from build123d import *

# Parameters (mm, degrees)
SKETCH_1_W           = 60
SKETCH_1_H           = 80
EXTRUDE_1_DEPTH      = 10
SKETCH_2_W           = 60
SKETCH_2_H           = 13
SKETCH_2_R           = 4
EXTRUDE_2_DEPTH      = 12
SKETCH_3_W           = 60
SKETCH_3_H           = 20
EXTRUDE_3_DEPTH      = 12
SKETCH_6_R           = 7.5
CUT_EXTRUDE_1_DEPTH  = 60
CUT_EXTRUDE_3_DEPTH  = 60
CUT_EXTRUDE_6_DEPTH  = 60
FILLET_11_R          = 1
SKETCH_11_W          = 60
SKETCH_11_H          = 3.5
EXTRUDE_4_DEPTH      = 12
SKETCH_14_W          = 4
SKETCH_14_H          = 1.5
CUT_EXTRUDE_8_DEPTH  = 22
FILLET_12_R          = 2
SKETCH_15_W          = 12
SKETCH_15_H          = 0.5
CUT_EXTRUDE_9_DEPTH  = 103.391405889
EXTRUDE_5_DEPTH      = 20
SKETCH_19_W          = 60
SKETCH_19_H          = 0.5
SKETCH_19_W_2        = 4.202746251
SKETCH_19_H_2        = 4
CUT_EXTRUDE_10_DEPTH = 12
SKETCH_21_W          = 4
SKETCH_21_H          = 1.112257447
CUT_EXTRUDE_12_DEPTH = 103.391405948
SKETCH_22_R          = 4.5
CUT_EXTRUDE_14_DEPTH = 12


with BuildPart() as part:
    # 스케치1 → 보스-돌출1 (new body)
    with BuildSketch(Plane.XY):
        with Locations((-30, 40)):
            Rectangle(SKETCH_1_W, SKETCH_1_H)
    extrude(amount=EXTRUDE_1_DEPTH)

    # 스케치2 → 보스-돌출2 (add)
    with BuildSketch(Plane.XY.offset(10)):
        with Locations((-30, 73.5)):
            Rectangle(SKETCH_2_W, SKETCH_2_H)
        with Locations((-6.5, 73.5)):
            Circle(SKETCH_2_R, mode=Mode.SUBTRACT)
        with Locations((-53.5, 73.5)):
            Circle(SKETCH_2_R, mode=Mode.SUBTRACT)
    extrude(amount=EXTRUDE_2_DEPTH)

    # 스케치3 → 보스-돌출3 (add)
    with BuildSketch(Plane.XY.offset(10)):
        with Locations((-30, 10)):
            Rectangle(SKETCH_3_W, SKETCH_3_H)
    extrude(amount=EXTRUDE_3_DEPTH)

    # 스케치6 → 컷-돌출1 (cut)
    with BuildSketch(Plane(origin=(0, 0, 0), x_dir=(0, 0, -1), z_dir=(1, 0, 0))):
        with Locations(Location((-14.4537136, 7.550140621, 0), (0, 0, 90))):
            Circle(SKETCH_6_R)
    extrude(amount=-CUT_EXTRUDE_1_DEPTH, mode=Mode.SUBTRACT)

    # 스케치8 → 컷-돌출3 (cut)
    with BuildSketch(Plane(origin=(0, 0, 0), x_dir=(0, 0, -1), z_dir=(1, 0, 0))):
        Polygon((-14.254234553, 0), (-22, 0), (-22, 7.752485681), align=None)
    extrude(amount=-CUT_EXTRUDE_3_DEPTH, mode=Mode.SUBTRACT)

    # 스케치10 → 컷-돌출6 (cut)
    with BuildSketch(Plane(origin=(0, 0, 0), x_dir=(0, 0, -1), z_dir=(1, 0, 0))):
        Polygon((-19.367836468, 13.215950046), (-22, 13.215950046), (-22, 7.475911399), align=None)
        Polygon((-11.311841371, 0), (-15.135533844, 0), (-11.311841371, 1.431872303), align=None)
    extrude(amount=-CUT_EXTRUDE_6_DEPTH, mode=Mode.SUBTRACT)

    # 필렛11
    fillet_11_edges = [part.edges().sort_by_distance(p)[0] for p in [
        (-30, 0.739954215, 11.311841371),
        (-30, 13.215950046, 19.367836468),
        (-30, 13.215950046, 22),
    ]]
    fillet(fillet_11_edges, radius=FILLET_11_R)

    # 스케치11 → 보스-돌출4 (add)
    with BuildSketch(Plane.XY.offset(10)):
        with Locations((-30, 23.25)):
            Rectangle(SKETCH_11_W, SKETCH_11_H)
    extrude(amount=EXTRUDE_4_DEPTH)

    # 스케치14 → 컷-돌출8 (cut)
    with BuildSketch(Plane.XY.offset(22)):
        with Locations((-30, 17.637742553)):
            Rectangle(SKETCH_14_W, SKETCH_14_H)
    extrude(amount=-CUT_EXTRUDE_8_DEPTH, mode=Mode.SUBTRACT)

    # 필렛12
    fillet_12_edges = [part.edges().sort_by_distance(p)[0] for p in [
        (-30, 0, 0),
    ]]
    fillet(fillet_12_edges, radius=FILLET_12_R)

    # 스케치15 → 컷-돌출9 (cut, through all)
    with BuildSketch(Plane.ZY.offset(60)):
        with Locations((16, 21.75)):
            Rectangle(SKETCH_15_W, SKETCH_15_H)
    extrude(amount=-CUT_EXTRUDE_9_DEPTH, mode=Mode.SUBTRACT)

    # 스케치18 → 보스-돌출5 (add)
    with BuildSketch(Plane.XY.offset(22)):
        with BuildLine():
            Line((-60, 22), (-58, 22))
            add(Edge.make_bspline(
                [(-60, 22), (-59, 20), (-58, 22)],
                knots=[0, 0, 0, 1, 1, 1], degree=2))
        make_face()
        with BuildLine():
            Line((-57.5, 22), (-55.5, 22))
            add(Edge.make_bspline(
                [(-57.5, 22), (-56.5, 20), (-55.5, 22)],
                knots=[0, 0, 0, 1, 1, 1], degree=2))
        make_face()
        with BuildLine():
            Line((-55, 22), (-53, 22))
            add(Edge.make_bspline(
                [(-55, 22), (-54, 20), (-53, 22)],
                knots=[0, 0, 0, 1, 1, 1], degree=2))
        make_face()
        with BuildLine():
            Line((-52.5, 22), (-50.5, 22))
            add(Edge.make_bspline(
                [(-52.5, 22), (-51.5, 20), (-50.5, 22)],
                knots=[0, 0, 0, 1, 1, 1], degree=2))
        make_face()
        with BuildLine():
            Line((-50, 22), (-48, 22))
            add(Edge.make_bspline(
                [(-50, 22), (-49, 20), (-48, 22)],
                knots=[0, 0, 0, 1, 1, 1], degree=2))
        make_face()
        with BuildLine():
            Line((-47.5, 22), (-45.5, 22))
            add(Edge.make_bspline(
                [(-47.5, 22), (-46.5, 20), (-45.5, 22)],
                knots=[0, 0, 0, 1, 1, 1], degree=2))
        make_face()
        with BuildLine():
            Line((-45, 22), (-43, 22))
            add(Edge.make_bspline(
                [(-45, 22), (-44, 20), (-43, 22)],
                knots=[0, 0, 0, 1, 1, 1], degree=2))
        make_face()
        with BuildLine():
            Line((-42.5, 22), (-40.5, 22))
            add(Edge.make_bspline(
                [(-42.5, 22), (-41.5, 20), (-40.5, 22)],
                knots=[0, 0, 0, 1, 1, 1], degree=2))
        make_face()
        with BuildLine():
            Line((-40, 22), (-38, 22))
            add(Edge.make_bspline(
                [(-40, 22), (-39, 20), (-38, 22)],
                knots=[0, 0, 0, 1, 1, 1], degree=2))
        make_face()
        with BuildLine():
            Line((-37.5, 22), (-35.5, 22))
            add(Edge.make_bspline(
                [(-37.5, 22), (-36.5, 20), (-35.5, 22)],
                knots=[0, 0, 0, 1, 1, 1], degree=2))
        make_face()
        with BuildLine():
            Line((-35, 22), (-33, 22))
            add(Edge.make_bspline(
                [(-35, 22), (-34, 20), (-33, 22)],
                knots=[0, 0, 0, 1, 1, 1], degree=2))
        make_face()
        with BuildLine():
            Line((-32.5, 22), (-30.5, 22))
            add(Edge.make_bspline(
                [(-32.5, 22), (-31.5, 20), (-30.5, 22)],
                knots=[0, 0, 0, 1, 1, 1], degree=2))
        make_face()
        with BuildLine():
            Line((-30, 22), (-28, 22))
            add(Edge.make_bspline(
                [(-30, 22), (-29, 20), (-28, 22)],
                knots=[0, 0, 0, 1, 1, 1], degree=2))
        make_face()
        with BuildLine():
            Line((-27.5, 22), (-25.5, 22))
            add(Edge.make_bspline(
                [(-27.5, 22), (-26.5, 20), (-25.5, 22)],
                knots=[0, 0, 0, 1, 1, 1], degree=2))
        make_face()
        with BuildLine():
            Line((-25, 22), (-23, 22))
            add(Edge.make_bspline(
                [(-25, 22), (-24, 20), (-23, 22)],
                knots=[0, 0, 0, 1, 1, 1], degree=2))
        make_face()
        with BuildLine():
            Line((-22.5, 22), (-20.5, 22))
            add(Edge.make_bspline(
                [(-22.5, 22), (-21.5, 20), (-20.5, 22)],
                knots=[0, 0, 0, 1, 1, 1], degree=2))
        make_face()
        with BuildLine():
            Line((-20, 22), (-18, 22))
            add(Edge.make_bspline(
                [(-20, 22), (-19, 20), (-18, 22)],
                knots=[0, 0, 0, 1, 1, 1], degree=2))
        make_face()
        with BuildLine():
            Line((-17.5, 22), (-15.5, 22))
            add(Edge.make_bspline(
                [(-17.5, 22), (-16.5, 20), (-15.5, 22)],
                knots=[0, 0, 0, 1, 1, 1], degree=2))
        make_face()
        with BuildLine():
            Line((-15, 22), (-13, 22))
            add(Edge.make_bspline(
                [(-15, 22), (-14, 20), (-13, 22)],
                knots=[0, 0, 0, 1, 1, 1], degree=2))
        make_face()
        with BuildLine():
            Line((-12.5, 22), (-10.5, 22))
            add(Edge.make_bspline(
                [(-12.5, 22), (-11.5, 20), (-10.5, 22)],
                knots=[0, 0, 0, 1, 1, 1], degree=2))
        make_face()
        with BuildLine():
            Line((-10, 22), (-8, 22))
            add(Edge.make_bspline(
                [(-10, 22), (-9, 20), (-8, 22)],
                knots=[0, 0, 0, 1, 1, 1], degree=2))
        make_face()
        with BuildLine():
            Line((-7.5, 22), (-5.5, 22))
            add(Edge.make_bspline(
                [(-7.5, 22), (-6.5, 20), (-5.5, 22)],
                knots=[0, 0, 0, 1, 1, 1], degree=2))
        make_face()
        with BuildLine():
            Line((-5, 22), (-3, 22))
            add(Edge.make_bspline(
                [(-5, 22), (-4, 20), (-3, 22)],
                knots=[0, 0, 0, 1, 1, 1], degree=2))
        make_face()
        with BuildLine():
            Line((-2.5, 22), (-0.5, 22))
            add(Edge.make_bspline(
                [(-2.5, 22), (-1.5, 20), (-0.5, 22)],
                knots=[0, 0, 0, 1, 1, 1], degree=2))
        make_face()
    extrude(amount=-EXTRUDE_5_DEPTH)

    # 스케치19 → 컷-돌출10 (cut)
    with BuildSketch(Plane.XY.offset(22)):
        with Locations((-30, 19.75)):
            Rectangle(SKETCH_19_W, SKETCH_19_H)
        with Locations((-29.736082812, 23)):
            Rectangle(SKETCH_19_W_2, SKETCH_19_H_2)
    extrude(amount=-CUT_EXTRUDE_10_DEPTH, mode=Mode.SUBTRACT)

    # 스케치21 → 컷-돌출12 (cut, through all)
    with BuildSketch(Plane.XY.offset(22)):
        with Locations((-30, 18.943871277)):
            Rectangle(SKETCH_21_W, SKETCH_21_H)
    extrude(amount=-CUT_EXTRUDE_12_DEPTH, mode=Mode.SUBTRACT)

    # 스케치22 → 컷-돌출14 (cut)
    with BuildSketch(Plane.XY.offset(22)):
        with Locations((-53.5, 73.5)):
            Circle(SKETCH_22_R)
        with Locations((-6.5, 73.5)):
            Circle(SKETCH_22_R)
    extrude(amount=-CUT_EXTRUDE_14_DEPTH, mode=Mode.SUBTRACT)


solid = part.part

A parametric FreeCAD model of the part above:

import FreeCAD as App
import Part
import Sketcher
from FreeCAD import Vector


def edges_at(feature, points):
    """Names of the edges that pass closest to the given points."""
    edges = feature.Shape.Edges
    near = lambda p: min(range(len(edges)), key=lambda i: edges[i].distToShape(Part.Vertex(*p))[0])
    return sorted({f"Edge{near(p) + 1}" for p in points})

doc = App.newDocument("Part")
body = doc.addObject("PartDesign::Body", "Body")

# Sketch on XY plane
sketch1 = body.newObject("Sketcher::SketchObject", "Sketch")
sketch1.AttachmentSupport = (doc.getObject("XY_Plane"), [""])
sketch1.MapMode = "FlatFace"
sketch1.addGeometry(Part.LineSegment(Vector(-60, 80, 0), Vector(-60, 0, 0)), False)
sketch1.addGeometry(Part.LineSegment(Vector(-60, 0, 0), Vector(0, 0, 0)), False)
sketch1.addGeometry(Part.LineSegment(Vector(0, 0, 0), Vector(0, 80, 0)), False)
sketch1.addGeometry(Part.LineSegment(Vector(0, 80, 0), Vector(-60, 80, 0)), False)
sketch1.addConstraint(Sketcher.Constraint("Coincident", 0, 2, 1, 1))
sketch1.addConstraint(Sketcher.Constraint("Coincident", 1, 2, 2, 1))
sketch1.addConstraint(Sketcher.Constraint("Coincident", 2, 2, 3, 1))
sketch1.addConstraint(Sketcher.Constraint("Coincident", 3, 2, 0, 1))
sketch1.addConstraint(Sketcher.Constraint("Vertical", 0))
sketch1.addConstraint(Sketcher.Constraint("Horizontal", 1))
sketch1.addConstraint(Sketcher.Constraint("Vertical", 2))
sketch1.addConstraint(Sketcher.Constraint("Horizontal", 3))
sketch1.addConstraint(Sketcher.Constraint("Coincident", 1, 2, -1, 1))
sketch1.addConstraint(Sketcher.Constraint("DistanceX", 1, 1, 1, 2, 60.0))
sketch1.addConstraint(Sketcher.Constraint("DistanceY", 0, 2, 0, 1, 80.0))
pad1 = body.newObject("PartDesign::Pad", "Pad")
pad1.Profile = sketch1
pad1.Length = 10

# Sketch on XY plane
sketch2 = body.newObject("Sketcher::SketchObject", "Sketch001")
sketch2.AttachmentSupport = (doc.getObject("XY_Plane"), [""])
sketch2.MapMode = "FlatFace"
sketch2.AttachmentOffset = App.Placement(Vector(0, 0, 10), App.Rotation())
sketch2.addGeometry(Part.LineSegment(Vector(-60, 80, 0), Vector(-60, 67, 0)), False)
sketch2.addGeometry(Part.LineSegment(Vector(-60, 67, 0), Vector(0, 67, 0)), False)
sketch2.addGeometry(Part.LineSegment(Vector(0, 67, 0), Vector(0, 80, 0)), False)
sketch2.addGeometry(Part.LineSegment(Vector(0, 80, 0), Vector(-60, 80, 0)), False)
sketch2.addGeometry(Part.Circle(Vector(-53.5, 73.5, 0), Vector(0, 0, 1), 4), False)
sketch2.addGeometry(Part.Circle(Vector(-6.5, 73.5, 0), Vector(0, 0, 1), 4), False)
sketch2.addConstraint(Sketcher.Constraint("Coincident", 0, 2, 1, 1))
sketch2.addConstraint(Sketcher.Constraint("Coincident", 1, 2, 2, 1))
sketch2.addConstraint(Sketcher.Constraint("Coincident", 2, 2, 3, 1))
sketch2.addConstraint(Sketcher.Constraint("Coincident", 3, 2, 0, 1))
sketch2.addConstraint(Sketcher.Constraint("Vertical", 0))
sketch2.addConstraint(Sketcher.Constraint("Horizontal", 1))
sketch2.addConstraint(Sketcher.Constraint("Vertical", 2))
sketch2.addConstraint(Sketcher.Constraint("Horizontal", 3))
sketch2.addConstraint(Sketcher.Constraint("Equal", 4, 5))
sketch2.addConstraint(Sketcher.Constraint("PointOnObject", 1, 2, -2))
sketch2.addConstraint(Sketcher.Constraint("Horizontal", 4, 3, 5, 3))
sketch2.addConstraint(Sketcher.Constraint("Diameter", 4, 8.0))
sketch2.addConstraint(Sketcher.Constraint("DistanceX", 1, 1, 1, 2, 60.0))
sketch2.addConstraint(Sketcher.Constraint("DistanceY", 0, 2, 0, 1, 13.0))
sketch2.addConstraint(Sketcher.Constraint("DistanceY", -1, 1, 0, 2, 67.0))
sketch2.addConstraint(Sketcher.Constraint("DistanceX", 4, 3, 5, 3, 47.0))
sketch2.addConstraint(Sketcher.Constraint("DistanceX", 4, 3, -1, 1, 53.5))
sketch2.addConstraint(Sketcher.Constraint("DistanceY", -1, 1, 4, 3, 73.5))
pad2 = body.newObject("PartDesign::Pad", "Pad001")
pad2.Profile = sketch2
pad2.Length = 12

# Sketch on XY plane
sketch3 = body.newObject("Sketcher::SketchObject", "Sketch002")
sketch3.AttachmentSupport = (doc.getObject("XY_Plane"), [""])
sketch3.MapMode = "FlatFace"
sketch3.AttachmentOffset = App.Placement(Vector(0, 0, 10), App.Rotation())
sketch3.addGeometry(Part.LineSegment(Vector(-60, 20, 0), Vector(-60, 0, 0)), False)
sketch3.addGeometry(Part.LineSegment(Vector(-60, 0, 0), Vector(0, 0, 0)), False)
sketch3.addGeometry(Part.LineSegment(Vector(0, 0, 0), Vector(0, 20, 0)), False)
sketch3.addGeometry(Part.LineSegment(Vector(0, 20, 0), Vector(-60, 20, 0)), False)
sketch3.addConstraint(Sketcher.Constraint("Coincident", 0, 2, 1, 1))
sketch3.addConstraint(Sketcher.Constraint("Coincident", 1, 2, 2, 1))
sketch3.addConstraint(Sketcher.Constraint("Coincident", 2, 2, 3, 1))
sketch3.addConstraint(Sketcher.Constraint("Coincident", 3, 2, 0, 1))
sketch3.addConstraint(Sketcher.Constraint("Vertical", 0))
sketch3.addConstraint(Sketcher.Constraint("Horizontal", 1))
sketch3.addConstraint(Sketcher.Constraint("Vertical", 2))
sketch3.addConstraint(Sketcher.Constraint("Horizontal", 3))
sketch3.addConstraint(Sketcher.Constraint("Coincident", 1, 2, -1, 1))
sketch3.addConstraint(Sketcher.Constraint("DistanceX", 1, 1, 1, 2, 60.0))
sketch3.addConstraint(Sketcher.Constraint("DistanceY", 0, 2, 0, 1, 20.0))
pad3 = body.newObject("PartDesign::Pad", "Pad002")
pad3.Profile = sketch3
pad3.Length = 12

# Sketch on YZ plane
sketch4 = body.newObject("Sketcher::SketchObject", "Sketch003")
sketch4.AttachmentSupport = (doc.getObject("YZ_Plane"), [""])
sketch4.MapMode = "FlatFace"
sketch4.addGeometry(Part.Circle(Vector(8, 14, 0), Vector(0, 0, 1), 8), False)
sketch4.addConstraint(Sketcher.Constraint("Diameter", 0, 15.0))
sketch4.addConstraint(Sketcher.Constraint("DistanceX", -1, 1, 0, 3, 7.550141))
sketch4.addConstraint(Sketcher.Constraint("DistanceY", -1, 1, 0, 3, 14.453714))
pocket1 = body.newObject("PartDesign::Pocket", "Pocket")
pocket1.Profile = sketch4
pocket1.Length = 60

# Sketch on YZ plane
sketch5 = body.newObject("Sketcher::SketchObject", "Sketch004")
sketch5.AttachmentSupport = (doc.getObject("YZ_Plane"), [""])
sketch5.MapMode = "FlatFace"
sketch5.addGeometry(Part.LineSegment(Vector(0, 22, 0), Vector(0, 14, 0)), False)
sketch5.addGeometry(Part.LineSegment(Vector(0, 14, 0), Vector(8, 22, 0)), False)
sketch5.addGeometry(Part.LineSegment(Vector(8, 22, 0), Vector(0, 22, 0)), False)
sketch5.addConstraint(Sketcher.Constraint("Coincident", 0, 2, 1, 1))
sketch5.addConstraint(Sketcher.Constraint("Coincident", 1, 2, 2, 1))
sketch5.addConstraint(Sketcher.Constraint("Coincident", 2, 2, 0, 1))
sketch5.addConstraint(Sketcher.Constraint("Vertical", 0))
sketch5.addConstraint(Sketcher.Constraint("Horizontal", 2))
sketch5.addConstraint(Sketcher.Constraint("PointOnObject", 0, 2, -2))
sketch5.addConstraint(Sketcher.Constraint("DistanceY", -1, 1, 1, 2, 22.0))
sketch5.addConstraint(Sketcher.Constraint("Distance", 1, 10.958919))
sketch5.addConstraint(Sketcher.Constraint("DistanceX", 2, 2, 2, 1, 7.752486))
pocket2 = body.newObject("PartDesign::Pocket", "Pocket001")
pocket2.Profile = sketch5
pocket2.Length = 60

# Sketch on YZ plane
sketch6 = body.newObject("Sketcher::SketchObject", "Sketch005")
sketch6.AttachmentSupport = (doc.getObject("YZ_Plane"), [""])
sketch6.MapMode = "FlatFace"
sketch6.addGeometry(Part.LineSegment(Vector(13.2, 19.4, 0), Vector(13.2, 22, 0)), False)
sketch6.addGeometry(Part.LineSegment(Vector(13.2, 22, 0), Vector(7.5, 22, 0)), False)
sketch6.addGeometry(Part.LineSegment(Vector(7.5, 22, 0), Vector(13.2, 19.4, 0)), False)
sketch6.addGeometry(Part.LineSegment(Vector(0, 15.1, 0), Vector(0, 11.3, 0)), False)
sketch6.addGeometry(Part.LineSegment(Vector(0, 11.3, 0), Vector(1.4, 11.3, 0)), False)
sketch6.addGeometry(Part.LineSegment(Vector(1.4, 11.3, 0), Vector(0, 15.1, 0)), False)
sketch6.addConstraint(Sketcher.Constraint("Coincident", 0, 2, 1, 1))
sketch6.addConstraint(Sketcher.Constraint("Coincident", 1, 2, 2, 1))
sketch6.addConstraint(Sketcher.Constraint("Coincident", 2, 2, 0, 1))
sketch6.addConstraint(Sketcher.Constraint("Coincident", 3, 2, 4, 1))
sketch6.addConstraint(Sketcher.Constraint("Coincident", 4, 2, 5, 1))
sketch6.addConstraint(Sketcher.Constraint("Coincident", 5, 2, 3, 1))
sketch6.addConstraint(Sketcher.Constraint("Vertical", 0))
sketch6.addConstraint(Sketcher.Constraint("Horizontal", 1))
sketch6.addConstraint(Sketcher.Constraint("Vertical", 3))
sketch6.addConstraint(Sketcher.Constraint("Horizontal", 4))
sketch6.addConstraint(Sketcher.Constraint("PointOnObject", 3, 2, -2))
sketch6.addConstraint(Sketcher.Constraint("DistanceY", -1, 1, 0, 2, 22.0))
sketch6.addConstraint(Sketcher.Constraint("Distance", 5, 4.082999))
sketch6.addConstraint(Sketcher.Constraint("DistanceX", 1, 2, 1, 1, 5.740039))
sketch6.addConstraint(Sketcher.Constraint("Distance", 2, 6.314771))
sketch6.addConstraint(Sketcher.Constraint("DistanceX", 4, 1, 4, 2, 1.431872))
sketch6.addConstraint(Sketcher.Constraint("DistanceX", -1, 1, 0, 2, 13.21595))
sketch6.addConstraint(Sketcher.Constraint("DistanceY", -1, 1, 3, 2, 11.311841))
pocket3 = body.newObject("PartDesign::Pocket", "Pocket002")
pocket3.Profile = sketch6
pocket3.Length = 60
doc.recompute()

fillet = body.newObject("PartDesign::Fillet", "Fillet")
fillet.Base = (pocket3, edges_at(pocket3, [(-30, 0.74, 11.312), (-30, 13.216, 19.368), (-30, 13.216, 22)]))
fillet.Radius = 1

# Sketch on XY plane
sketch7 = body.newObject("Sketcher::SketchObject", "Sketch006")
sketch7.AttachmentSupport = (doc.getObject("XY_Plane"), [""])
sketch7.MapMode = "FlatFace"
sketch7.AttachmentOffset = App.Placement(Vector(0, 0, 10), App.Rotation())
sketch7.addGeometry(Part.LineSegment(Vector(-60, 25, 0), Vector(-60, 21.5, 0)), False)
sketch7.addGeometry(Part.LineSegment(Vector(-60, 21.5, 0), Vector(0, 21.5, 0)), False)
sketch7.addGeometry(Part.LineSegment(Vector(0, 21.5, 0), Vector(0, 25, 0)), False)
sketch7.addGeometry(Part.LineSegment(Vector(0, 25, 0), Vector(-60, 25, 0)), False)
sketch7.addConstraint(Sketcher.Constraint("Coincident", 0, 2, 1, 1))
sketch7.addConstraint(Sketcher.Constraint("Coincident", 1, 2, 2, 1))
sketch7.addConstraint(Sketcher.Constraint("Coincident", 2, 2, 3, 1))
sketch7.addConstraint(Sketcher.Constraint("Coincident", 3, 2, 0, 1))
sketch7.addConstraint(Sketcher.Constraint("Vertical", 0))
sketch7.addConstraint(Sketcher.Constraint("Horizontal", 1))
sketch7.addConstraint(Sketcher.Constraint("Vertical", 2))
sketch7.addConstraint(Sketcher.Constraint("Horizontal", 3))
sketch7.addConstraint(Sketcher.Constraint("PointOnObject", 1, 2, -2))
sketch7.addConstraint(Sketcher.Constraint("DistanceX", 1, 1, 1, 2, 60.0))
sketch7.addConstraint(Sketcher.Constraint("DistanceY", 0, 2, 0, 1, 3.5))
sketch7.addConstraint(Sketcher.Constraint("DistanceY", -1, 1, 2, 2, 25.0))
pad4 = body.newObject("PartDesign::Pad", "Pad003")
pad4.Profile = sketch7
pad4.Length = 12

# Sketch on XY plane
sketch8 = body.newObject("Sketcher::SketchObject", "Sketch007")
sketch8.AttachmentSupport = (doc.getObject("XY_Plane"), [""])
sketch8.MapMode = "FlatFace"
sketch8.AttachmentOffset = App.Placement(Vector(0, 0, 22), App.Rotation())
sketch8.addGeometry(Part.LineSegment(Vector(-32, 18.4, 0), Vector(-32, 16.9, 0)), False)
sketch8.addGeometry(Part.LineSegment(Vector(-32, 16.9, 0), Vector(-28, 16.9, 0)), False)
sketch8.addGeometry(Part.LineSegment(Vector(-28, 16.9, 0), Vector(-28, 18.4, 0)), False)
sketch8.addGeometry(Part.LineSegment(Vector(-28, 18.4, 0), Vector(-32, 18.4, 0)), False)
sketch8.addConstraint(Sketcher.Constraint("Coincident", 0, 2, 1, 1))
sketch8.addConstraint(Sketcher.Constraint("Coincident", 1, 2, 2, 1))
sketch8.addConstraint(Sketcher.Constraint("Coincident", 2, 2, 3, 1))
sketch8.addConstraint(Sketcher.Constraint("Coincident", 3, 2, 0, 1))
sketch8.addConstraint(Sketcher.Constraint("Vertical", 0))
sketch8.addConstraint(Sketcher.Constraint("Horizontal", 1))
sketch8.addConstraint(Sketcher.Constraint("Vertical", 2))
sketch8.addConstraint(Sketcher.Constraint("Horizontal", 3))
sketch8.addConstraint(Sketcher.Constraint("DistanceX", 1, 1, 1, 2, 4.0))
sketch8.addConstraint(Sketcher.Constraint("DistanceY", 0, 2, 0, 1, 1.5))
sketch8.addConstraint(Sketcher.Constraint("DistanceX", 0, 2, -1, 1, 32.0))
sketch8.addConstraint(Sketcher.Constraint("DistanceY", -1, 1, 0, 2, 16.887743))
pocket4 = body.newObject("PartDesign::Pocket", "Pocket003")
pocket4.Profile = sketch8
pocket4.Length = 22
doc.recompute()

fillet2 = body.newObject("PartDesign::Fillet", "Fillet001")
fillet2.Base = (pocket4, edges_at(pocket4, [(-30, 0, 0)]))
fillet2.Radius = 2

# Sketch on YZ plane
sketch9 = body.newObject("Sketcher::SketchObject", "Sketch008")
sketch9.AttachmentSupport = (doc.getObject("YZ_Plane"), [""])
sketch9.MapMode = "FlatFace"
sketch9.AttachmentOffset = App.Placement(Vector(0, 0, -60), App.Rotation())
sketch9.addGeometry(Part.LineSegment(Vector(22, 10, 0), Vector(21.5, 10, 0)), False)
sketch9.addGeometry(Part.LineSegment(Vector(21.5, 10, 0), Vector(21.5, 22, 0)), False)
sketch9.addGeometry(Part.LineSegment(Vector(21.5, 22, 0), Vector(22, 22, 0)), False)
sketch9.addGeometry(Part.LineSegment(Vector(22, 22, 0), Vector(22, 10, 0)), False)
sketch9.addConstraint(Sketcher.Constraint("Coincident", 0, 2, 1, 1))
sketch9.addConstraint(Sketcher.Constraint("Coincident", 1, 2, 2, 1))
sketch9.addConstraint(Sketcher.Constraint("Coincident", 2, 2, 3, 1))
sketch9.addConstraint(Sketcher.Constraint("Coincident", 3, 2, 0, 1))
sketch9.addConstraint(Sketcher.Constraint("Horizontal", 0))
sketch9.addConstraint(Sketcher.Constraint("Vertical", 1))
sketch9.addConstraint(Sketcher.Constraint("Horizontal", 2))
sketch9.addConstraint(Sketcher.Constraint("Vertical", 3))
sketch9.addConstraint(Sketcher.Constraint("DistanceY", 1, 1, 1, 2, 12.0))
sketch9.addConstraint(Sketcher.Constraint("DistanceX", 0, 2, 0, 1, 0.5))
sketch9.addConstraint(Sketcher.Constraint("DistanceY", -1, 1, 0, 2, 10.0))
sketch9.addConstraint(Sketcher.Constraint("DistanceX", -1, 1, 2, 2, 22.0))
pocket5 = body.newObject("PartDesign::Pocket", "Pocket004")
pocket5.Profile = sketch9
pocket5.Type = "ThroughAll"
pocket5.Reversed = True

# Sketch on XY plane
sketch10 = body.newObject("Sketcher::SketchObject", "Sketch009")
sketch10.AttachmentSupport = (doc.getObject("XY_Plane"), [""])
sketch10.MapMode = "FlatFace"
sketch10.AttachmentOffset = App.Placement(Vector(0, 0, 22), App.Rotation())
sketch10.addGeometry(Part.LineSegment(Vector(-58, 22, 0), Vector(-60, 22, 0)), False)
sketch10.addGeometry(Part.BSplineCurve([Vector(-60, 22, 0), Vector(-59, 20, 0), Vector(-58, 22, 0)], [3, 3], [0, 1], False, 2, [1, 1, 1], False), False)
sketch10.addGeometry(Part.LineSegment(Vector(-55.5, 22, 0), Vector(-57.5, 22, 0)), False)
sketch10.addGeometry(Part.BSplineCurve([Vector(-57.5, 22, 0), Vector(-56.5, 20, 0), Vector(-55.5, 22, 0)], [3, 3], [0, 1], False, 2, [1, 1, 1], False), False)
sketch10.addGeometry(Part.LineSegment(Vector(-53, 22, 0), Vector(-55, 22, 0)), False)
sketch10.addGeometry(Part.BSplineCurve([Vector(-55, 22, 0), Vector(-54, 20, 0), Vector(-53, 22, 0)], [3, 3], [0, 1], False, 2, [1, 1, 1], False), False)
sketch10.addGeometry(Part.LineSegment(Vector(-50.5, 22, 0), Vector(-52.5, 22, 0)), False)
sketch10.addGeometry(Part.BSplineCurve([Vector(-52.5, 22, 0), Vector(-51.5, 20, 0), Vector(-50.5, 22, 0)], [3, 3], [0, 1], False, 2, [1, 1, 1], False), False)
sketch10.addGeometry(Part.LineSegment(Vector(-48, 22, 0), Vector(-50, 22, 0)), False)
sketch10.addGeometry(Part.BSplineCurve([Vector(-50, 22, 0), Vector(-49, 20, 0), Vector(-48, 22, 0)], [3, 3], [0, 1], False, 2, [1, 1, 1], False), False)
sketch10.addGeometry(Part.LineSegment(Vector(-45.5, 22, 0), Vector(-47.5, 22, 0)), False)
sketch10.addGeometry(Part.BSplineCurve([Vector(-47.5, 22, 0), Vector(-46.5, 20, 0), Vector(-45.5, 22, 0)], [3, 3], [0, 1], False, 2, [1, 1, 1], False), False)
sketch10.addGeometry(Part.LineSegment(Vector(-43, 22, 0), Vector(-45, 22, 0)), False)
sketch10.addGeometry(Part.BSplineCurve([Vector(-45, 22, 0), Vector(-44, 20, 0), Vector(-43, 22, 0)], [3, 3], [0, 1], False, 2, [1, 1, 1], False), False)
sketch10.addGeometry(Part.LineSegment(Vector(-40.5, 22, 0), Vector(-42.5, 22, 0)), False)
sketch10.addGeometry(Part.BSplineCurve([Vector(-42.5, 22, 0), Vector(-41.5, 20, 0), Vector(-40.5, 22, 0)], [3, 3], [0, 1], False, 2, [1, 1, 1], False), False)
sketch10.addGeometry(Part.LineSegment(Vector(-38, 22, 0), Vector(-40, 22, 0)), False)
sketch10.addGeometry(Part.BSplineCurve([Vector(-40, 22, 0), Vector(-39, 20, 0), Vector(-38, 22, 0)], [3, 3], [0, 1], False, 2, [1, 1, 1], False), False)
sketch10.addGeometry(Part.LineSegment(Vector(-35.5, 22, 0), Vector(-37.5, 22, 0)), False)
sketch10.addGeometry(Part.BSplineCurve([Vector(-37.5, 22, 0), Vector(-36.5, 20, 0), Vector(-35.5, 22, 0)], [3, 3], [0, 1], False, 2, [1, 1, 1], False), False)
sketch10.addGeometry(Part.LineSegment(Vector(-33, 22, 0), Vector(-35, 22, 0)), False)
sketch10.addGeometry(Part.BSplineCurve([Vector(-35, 22, 0), Vector(-34, 20, 0), Vector(-33, 22, 0)], [3, 3], [0, 1], False, 2, [1, 1, 1], False), False)
sketch10.addGeometry(Part.LineSegment(Vector(-30.5, 22, 0), Vector(-32.5, 22, 0)), False)
sketch10.addGeometry(Part.BSplineCurve([Vector(-32.5, 22, 0), Vector(-31.5, 20, 0), Vector(-30.5, 22, 0)], [3, 3], [0, 1], False, 2, [1, 1, 1], False), False)
sketch10.addGeometry(Part.LineSegment(Vector(-28, 22, 0), Vector(-30, 22, 0)), False)
sketch10.addGeometry(Part.BSplineCurve([Vector(-30, 22, 0), Vector(-29, 20, 0), Vector(-28, 22, 0)], [3, 3], [0, 1], False, 2, [1, 1, 1], False), False)
sketch10.addGeometry(Part.LineSegment(Vector(-25.5, 22, 0), Vector(-27.5, 22, 0)), False)
sketch10.addGeometry(Part.BSplineCurve([Vector(-27.5, 22, 0), Vector(-26.5, 20, 0), Vector(-25.5, 22, 0)], [3, 3], [0, 1], False, 2, [1, 1, 1], False), False)
sketch10.addGeometry(Part.LineSegment(Vector(-23, 22, 0), Vector(-25, 22, 0)), False)
sketch10.addGeometry(Part.BSplineCurve([Vector(-25, 22, 0), Vector(-24, 20, 0), Vector(-23, 22, 0)], [3, 3], [0, 1], False, 2, [1, 1, 1], False), False)
sketch10.addGeometry(Part.LineSegment(Vector(-20.5, 22, 0), Vector(-22.5, 22, 0)), False)
sketch10.addGeometry(Part.BSplineCurve([Vector(-22.5, 22, 0), Vector(-21.5, 20, 0), Vector(-20.5, 22, 0)], [3, 3], [0, 1], False, 2, [1, 1, 1], False), False)
sketch10.addGeometry(Part.LineSegment(Vector(-18, 22, 0), Vector(-20, 22, 0)), False)
sketch10.addGeometry(Part.BSplineCurve([Vector(-20, 22, 0), Vector(-19, 20, 0), Vector(-18, 22, 0)], [3, 3], [0, 1], False, 2, [1, 1, 1], False), False)
sketch10.addGeometry(Part.LineSegment(Vector(-15.5, 22, 0), Vector(-17.5, 22, 0)), False)
sketch10.addGeometry(Part.BSplineCurve([Vector(-17.5, 22, 0), Vector(-16.5, 20, 0), Vector(-15.5, 22, 0)], [3, 3], [0, 1], False, 2, [1, 1, 1], False), False)
sketch10.addGeometry(Part.LineSegment(Vector(-13, 22, 0), Vector(-15, 22, 0)), False)
sketch10.addGeometry(Part.BSplineCurve([Vector(-15, 22, 0), Vector(-14, 20, 0), Vector(-13, 22, 0)], [3, 3], [0, 1], False, 2, [1, 1, 1], False), False)
sketch10.addGeometry(Part.LineSegment(Vector(-10.5, 22, 0), Vector(-12.5, 22, 0)), False)
sketch10.addGeometry(Part.BSplineCurve([Vector(-12.5, 22, 0), Vector(-11.5, 20, 0), Vector(-10.5, 22, 0)], [3, 3], [0, 1], False, 2, [1, 1, 1], False), False)
sketch10.addGeometry(Part.LineSegment(Vector(-8, 22, 0), Vector(-10, 22, 0)), False)
sketch10.addGeometry(Part.BSplineCurve([Vector(-10, 22, 0), Vector(-9, 20, 0), Vector(-8, 22, 0)], [3, 3], [0, 1], False, 2, [1, 1, 1], False), False)
sketch10.addGeometry(Part.LineSegment(Vector(-5.5, 22, 0), Vector(-7.5, 22, 0)), False)
sketch10.addGeometry(Part.BSplineCurve([Vector(-7.5, 22, 0), Vector(-6.5, 20, 0), Vector(-5.5, 22, 0)], [3, 3], [0, 1], False, 2, [1, 1, 1], False), False)
sketch10.addGeometry(Part.LineSegment(Vector(-3, 22, 0), Vector(-5, 22, 0)), False)
sketch10.addGeometry(Part.BSplineCurve([Vector(-5, 22, 0), Vector(-4, 20, 0), Vector(-3, 22, 0)], [3, 3], [0, 1], False, 2, [1, 1, 1], False), False)
sketch10.addGeometry(Part.LineSegment(Vector(-0.5, 22, 0), Vector(-2.5, 22, 0)), False)
sketch10.addGeometry(Part.BSplineCurve([Vector(-2.5, 22, 0), Vector(-1.5, 20, 0), Vector(-0.5, 22, 0)], [3, 3], [0, 1], False, 2, [1, 1, 1], False), False)
sketch10.addConstraint(Sketcher.Constraint("Block", 1))
sketch10.addConstraint(Sketcher.Constraint("Block", 3))
sketch10.addConstraint(Sketcher.Constraint("Block", 5))
sketch10.addConstraint(Sketcher.Constraint("Block", 7))
sketch10.addConstraint(Sketcher.Constraint("Block", 9))
sketch10.addConstraint(Sketcher.Constraint("Block", 11))
sketch10.addConstraint(Sketcher.Constraint("Block", 13))
sketch10.addConstraint(Sketcher.Constraint("Block", 15))
sketch10.addConstraint(Sketcher.Constraint("Block", 17))
sketch10.addConstraint(Sketcher.Constraint("Block", 19))
sketch10.addConstraint(Sketcher.Constraint("Block", 21))
sketch10.addConstraint(Sketcher.Constraint("Block", 23))
sketch10.addConstraint(Sketcher.Constraint("Block", 25))
sketch10.addConstraint(Sketcher.Constraint("Block", 27))
sketch10.addConstraint(Sketcher.Constraint("Block", 29))
sketch10.addConstraint(Sketcher.Constraint("Block", 31))
sketch10.addConstraint(Sketcher.Constraint("Block", 33))
sketch10.addConstraint(Sketcher.Constraint("Block", 35))
sketch10.addConstraint(Sketcher.Constraint("Block", 37))
sketch10.addConstraint(Sketcher.Constraint("Block", 39))
sketch10.addConstraint(Sketcher.Constraint("Block", 41))
sketch10.addConstraint(Sketcher.Constraint("Block", 43))
sketch10.addConstraint(Sketcher.Constraint("Block", 45))
sketch10.addConstraint(Sketcher.Constraint("Block", 47))
sketch10.addConstraint(Sketcher.Constraint("Coincident", 0, 1, 1, 2))
sketch10.addConstraint(Sketcher.Constraint("Coincident", 1, 1, 0, 2))
sketch10.addConstraint(Sketcher.Constraint("Coincident", 2, 1, 3, 2))
sketch10.addConstraint(Sketcher.Constraint("Coincident", 3, 1, 2, 2))
sketch10.addConstraint(Sketcher.Constraint("Coincident", 4, 1, 5, 2))
sketch10.addConstraint(Sketcher.Constraint("Coincident", 5, 1, 4, 2))
sketch10.addConstraint(Sketcher.Constraint("Coincident", 6, 1, 7, 2))
sketch10.addConstraint(Sketcher.Constraint("Coincident", 7, 1, 6, 2))
sketch10.addConstraint(Sketcher.Constraint("Coincident", 8, 1, 9, 2))
sketch10.addConstraint(Sketcher.Constraint("Coincident", 9, 1, 8, 2))
sketch10.addConstraint(Sketcher.Constraint("Coincident", 10, 1, 11, 2))
sketch10.addConstraint(Sketcher.Constraint("Coincident", 11, 1, 10, 2))
sketch10.addConstraint(Sketcher.Constraint("Coincident", 12, 1, 13, 2))
sketch10.addConstraint(Sketcher.Constraint("Coincident", 13, 1, 12, 2))
sketch10.addConstraint(Sketcher.Constraint("Coincident", 14, 1, 15, 2))
sketch10.addConstraint(Sketcher.Constraint("Coincident", 15, 1, 14, 2))
sketch10.addConstraint(Sketcher.Constraint("Coincident", 16, 1, 17, 2))
sketch10.addConstraint(Sketcher.Constraint("Coincident", 17, 1, 16, 2))
sketch10.addConstraint(Sketcher.Constraint("Coincident", 18, 1, 19, 2))
sketch10.addConstraint(Sketcher.Constraint("Coincident", 19, 1, 18, 2))
sketch10.addConstraint(Sketcher.Constraint("Coincident", 20, 1, 21, 2))
sketch10.addConstraint(Sketcher.Constraint("Coincident", 21, 1, 20, 2))
sketch10.addConstraint(Sketcher.Constraint("Coincident", 22, 1, 23, 2))
sketch10.addConstraint(Sketcher.Constraint("Coincident", 23, 1, 22, 2))
sketch10.addConstraint(Sketcher.Constraint("Coincident", 24, 1, 25, 2))
sketch10.addConstraint(Sketcher.Constraint("Coincident", 25, 1, 24, 2))
sketch10.addConstraint(Sketcher.Constraint("Coincident", 26, 1, 27, 2))
sketch10.addConstraint(Sketcher.Constraint("Coincident", 27, 1, 26, 2))
sketch10.addConstraint(Sketcher.Constraint("Coincident", 28, 1, 29, 2))
sketch10.addConstraint(Sketcher.Constraint("Coincident", 29, 1, 28, 2))
sketch10.addConstraint(Sketcher.Constraint("Coincident", 30, 1, 31, 2))
sketch10.addConstraint(Sketcher.Constraint("Coincident", 31, 1, 30, 2))
sketch10.addConstraint(Sketcher.Constraint("Coincident", 32, 1, 33, 2))
sketch10.addConstraint(Sketcher.Constraint("Coincident", 33, 1, 32, 2))
sketch10.addConstraint(Sketcher.Constraint("Coincident", 34, 1, 35, 2))
sketch10.addConstraint(Sketcher.Constraint("Coincident", 35, 1, 34, 2))
sketch10.addConstraint(Sketcher.Constraint("Coincident", 36, 1, 37, 2))
sketch10.addConstraint(Sketcher.Constraint("Coincident", 37, 1, 36, 2))
sketch10.addConstraint(Sketcher.Constraint("Coincident", 38, 1, 39, 2))
sketch10.addConstraint(Sketcher.Constraint("Coincident", 39, 1, 38, 2))
sketch10.addConstraint(Sketcher.Constraint("Coincident", 40, 1, 41, 2))
sketch10.addConstraint(Sketcher.Constraint("Coincident", 41, 1, 40, 2))
sketch10.addConstraint(Sketcher.Constraint("Coincident", 42, 1, 43, 2))
sketch10.addConstraint(Sketcher.Constraint("Coincident", 43, 1, 42, 2))
sketch10.addConstraint(Sketcher.Constraint("Coincident", 44, 1, 45, 2))
sketch10.addConstraint(Sketcher.Constraint("Coincident", 45, 1, 44, 2))
sketch10.addConstraint(Sketcher.Constraint("Coincident", 46, 1, 47, 2))
sketch10.addConstraint(Sketcher.Constraint("Coincident", 47, 1, 46, 2))
pad5 = body.newObject("PartDesign::Pad", "Pad004")
pad5.Profile = sketch10
pad5.Length = 20
pad5.Reversed = True

# Sketch on XY plane
sketch11 = body.newObject("Sketcher::SketchObject", "Sketch010")
sketch11.AttachmentSupport = (doc.getObject("XY_Plane"), [""])
sketch11.MapMode = "FlatFace"
sketch11.AttachmentOffset = App.Placement(Vector(0, 0, 22), App.Rotation())
sketch11.addGeometry(Part.LineSegment(Vector(-60, 20, 0), Vector(-60, 19.5, 0)), False)
sketch11.addGeometry(Part.LineSegment(Vector(-60, 19.5, 0), Vector(0, 19.5, 0)), False)
sketch11.addGeometry(Part.LineSegment(Vector(0, 19.5, 0), Vector(0, 20, 0)), False)
sketch11.addGeometry(Part.LineSegment(Vector(0, 20, 0), Vector(-60, 20, 0)), False)
sketch11.addGeometry(Part.LineSegment(Vector(-31.8, 25, 0), Vector(-31.8, 21, 0)), False)
sketch11.addGeometry(Part.LineSegment(Vector(-31.8, 21, 0), Vector(-27.6, 21, 0)), False)
sketch11.addGeometry(Part.LineSegment(Vector(-27.6, 21, 0), Vector(-27.6, 25, 0)), False)
sketch11.addGeometry(Part.LineSegment(Vector(-27.6, 25, 0), Vector(-31.8, 25, 0)), False)
sketch11.addConstraint(Sketcher.Constraint("Coincident", 0, 2, 1, 1))
sketch11.addConstraint(Sketcher.Constraint("Coincident", 1, 2, 2, 1))
sketch11.addConstraint(Sketcher.Constraint("Coincident", 2, 2, 3, 1))
sketch11.addConstraint(Sketcher.Constraint("Coincident", 3, 2, 0, 1))
sketch11.addConstraint(Sketcher.Constraint("Coincident", 4, 2, 5, 1))
sketch11.addConstraint(Sketcher.Constraint("Coincident", 5, 2, 6, 1))
sketch11.addConstraint(Sketcher.Constraint("Coincident", 6, 2, 7, 1))
sketch11.addConstraint(Sketcher.Constraint("Coincident", 7, 2, 4, 1))
sketch11.addConstraint(Sketcher.Constraint("Vertical", 0))
sketch11.addConstraint(Sketcher.Constraint("Horizontal", 1))
sketch11.addConstraint(Sketcher.Constraint("Vertical", 2))
sketch11.addConstraint(Sketcher.Constraint("Horizontal", 3))
sketch11.addConstraint(Sketcher.Constraint("Vertical", 4))
sketch11.addConstraint(Sketcher.Constraint("Horizontal", 5))
sketch11.addConstraint(Sketcher.Constraint("Vertical", 6))
sketch11.addConstraint(Sketcher.Constraint("Horizontal", 7))
sketch11.addConstraint(Sketcher.Constraint("PointOnObject", 1, 2, -2))
sketch11.addConstraint(Sketcher.Constraint("DistanceX", 1, 1, 1, 2, 60.0))
sketch11.addConstraint(Sketcher.Constraint("DistanceY", 4, 2, 4, 1, 4.0))
sketch11.addConstraint(Sketcher.Constraint("DistanceY", 0, 2, 0, 1, 0.5))
sketch11.addConstraint(Sketcher.Constraint("DistanceY", -1, 1, 2, 2, 20.0))
sketch11.addConstraint(Sketcher.Constraint("DistanceY", -1, 1, 4, 2, 21.0))
sketch11.addConstraint(Sketcher.Constraint("DistanceX", 5, 1, 5, 2, 4.202746))
sketch11.addConstraint(Sketcher.Constraint("DistanceX", 5, 2, -1, 1, 27.63471))
pocket6 = body.newObject("PartDesign::Pocket", "Pocket005")
pocket6.Profile = sketch11
pocket6.Length = 12

# Sketch on XY plane
sketch12 = body.newObject("Sketcher::SketchObject", "Sketch011")
sketch12.AttachmentSupport = (doc.getObject("XY_Plane"), [""])
sketch12.MapMode = "FlatFace"
sketch12.AttachmentOffset = App.Placement(Vector(0, 0, 22), App.Rotation())
sketch12.addGeometry(Part.LineSegment(Vector(-32, 19.5, 0), Vector(-32, 18.4, 0)), False)
sketch12.addGeometry(Part.LineSegment(Vector(-32, 18.4, 0), Vector(-28, 18.4, 0)), False)
sketch12.addGeometry(Part.LineSegment(Vector(-28, 18.4, 0), Vector(-28, 19.5, 0)), False)
sketch12.addGeometry(Part.LineSegment(Vector(-28, 19.5, 0), Vector(-32, 19.5, 0)), False)
sketch12.addConstraint(Sketcher.Constraint("Coincident", 0, 2, 1, 1))
sketch12.addConstraint(Sketcher.Constraint("Coincident", 1, 2, 2, 1))
sketch12.addConstraint(Sketcher.Constraint("Coincident", 2, 2, 3, 1))
sketch12.addConstraint(Sketcher.Constraint("Coincident", 3, 2, 0, 1))
sketch12.addConstraint(Sketcher.Constraint("Vertical", 0))
sketch12.addConstraint(Sketcher.Constraint("Horizontal", 1))
sketch12.addConstraint(Sketcher.Constraint("Vertical", 2))
sketch12.addConstraint(Sketcher.Constraint("Horizontal", 3))
sketch12.addConstraint(Sketcher.Constraint("DistanceX", 1, 1, 1, 2, 4.0))
sketch12.addConstraint(Sketcher.Constraint("DistanceX", 0, 2, -1, 1, 32.0))
sketch12.addConstraint(Sketcher.Constraint("DistanceY", -1, 1, 2, 2, 19.5))
sketch12.addConstraint(Sketcher.Constraint("DistanceY", 0, 2, 0, 1, 1.112257))
pocket7 = body.newObject("PartDesign::Pocket", "Pocket006")
pocket7.Profile = sketch12
pocket7.Type = "ThroughAll"

# Sketch on XY plane
sketch13 = body.newObject("Sketcher::SketchObject", "Sketch012")
sketch13.AttachmentSupport = (doc.getObject("XY_Plane"), [""])
sketch13.MapMode = "FlatFace"
sketch13.AttachmentOffset = App.Placement(Vector(0, 0, 22), App.Rotation())
sketch13.addGeometry(Part.Circle(Vector(-53.5, 73.5, 0), Vector(0, 0, 1), 4.5), False)
sketch13.addGeometry(Part.Circle(Vector(-6.5, 73.5, 0), Vector(0, 0, 1), 4.5), False)
sketch13.addConstraint(Sketcher.Constraint("Equal", 0, 1))
sketch13.addConstraint(Sketcher.Constraint("Horizontal", 0, 3, 1, 3))
sketch13.addConstraint(Sketcher.Constraint("Diameter", 0, 9.0))
sketch13.addConstraint(Sketcher.Constraint("DistanceX", 0, 3, 1, 3, 47.0))
sketch13.addConstraint(Sketcher.Constraint("DistanceX", 0, 3, -1, 1, 53.5))
sketch13.addConstraint(Sketcher.Constraint("DistanceY", -1, 1, 0, 3, 73.5))
pocket8 = body.newObject("PartDesign::Pocket", "Pocket007")
pocket8.Profile = sketch13
pocket8.Length = 12

doc.recompute()
